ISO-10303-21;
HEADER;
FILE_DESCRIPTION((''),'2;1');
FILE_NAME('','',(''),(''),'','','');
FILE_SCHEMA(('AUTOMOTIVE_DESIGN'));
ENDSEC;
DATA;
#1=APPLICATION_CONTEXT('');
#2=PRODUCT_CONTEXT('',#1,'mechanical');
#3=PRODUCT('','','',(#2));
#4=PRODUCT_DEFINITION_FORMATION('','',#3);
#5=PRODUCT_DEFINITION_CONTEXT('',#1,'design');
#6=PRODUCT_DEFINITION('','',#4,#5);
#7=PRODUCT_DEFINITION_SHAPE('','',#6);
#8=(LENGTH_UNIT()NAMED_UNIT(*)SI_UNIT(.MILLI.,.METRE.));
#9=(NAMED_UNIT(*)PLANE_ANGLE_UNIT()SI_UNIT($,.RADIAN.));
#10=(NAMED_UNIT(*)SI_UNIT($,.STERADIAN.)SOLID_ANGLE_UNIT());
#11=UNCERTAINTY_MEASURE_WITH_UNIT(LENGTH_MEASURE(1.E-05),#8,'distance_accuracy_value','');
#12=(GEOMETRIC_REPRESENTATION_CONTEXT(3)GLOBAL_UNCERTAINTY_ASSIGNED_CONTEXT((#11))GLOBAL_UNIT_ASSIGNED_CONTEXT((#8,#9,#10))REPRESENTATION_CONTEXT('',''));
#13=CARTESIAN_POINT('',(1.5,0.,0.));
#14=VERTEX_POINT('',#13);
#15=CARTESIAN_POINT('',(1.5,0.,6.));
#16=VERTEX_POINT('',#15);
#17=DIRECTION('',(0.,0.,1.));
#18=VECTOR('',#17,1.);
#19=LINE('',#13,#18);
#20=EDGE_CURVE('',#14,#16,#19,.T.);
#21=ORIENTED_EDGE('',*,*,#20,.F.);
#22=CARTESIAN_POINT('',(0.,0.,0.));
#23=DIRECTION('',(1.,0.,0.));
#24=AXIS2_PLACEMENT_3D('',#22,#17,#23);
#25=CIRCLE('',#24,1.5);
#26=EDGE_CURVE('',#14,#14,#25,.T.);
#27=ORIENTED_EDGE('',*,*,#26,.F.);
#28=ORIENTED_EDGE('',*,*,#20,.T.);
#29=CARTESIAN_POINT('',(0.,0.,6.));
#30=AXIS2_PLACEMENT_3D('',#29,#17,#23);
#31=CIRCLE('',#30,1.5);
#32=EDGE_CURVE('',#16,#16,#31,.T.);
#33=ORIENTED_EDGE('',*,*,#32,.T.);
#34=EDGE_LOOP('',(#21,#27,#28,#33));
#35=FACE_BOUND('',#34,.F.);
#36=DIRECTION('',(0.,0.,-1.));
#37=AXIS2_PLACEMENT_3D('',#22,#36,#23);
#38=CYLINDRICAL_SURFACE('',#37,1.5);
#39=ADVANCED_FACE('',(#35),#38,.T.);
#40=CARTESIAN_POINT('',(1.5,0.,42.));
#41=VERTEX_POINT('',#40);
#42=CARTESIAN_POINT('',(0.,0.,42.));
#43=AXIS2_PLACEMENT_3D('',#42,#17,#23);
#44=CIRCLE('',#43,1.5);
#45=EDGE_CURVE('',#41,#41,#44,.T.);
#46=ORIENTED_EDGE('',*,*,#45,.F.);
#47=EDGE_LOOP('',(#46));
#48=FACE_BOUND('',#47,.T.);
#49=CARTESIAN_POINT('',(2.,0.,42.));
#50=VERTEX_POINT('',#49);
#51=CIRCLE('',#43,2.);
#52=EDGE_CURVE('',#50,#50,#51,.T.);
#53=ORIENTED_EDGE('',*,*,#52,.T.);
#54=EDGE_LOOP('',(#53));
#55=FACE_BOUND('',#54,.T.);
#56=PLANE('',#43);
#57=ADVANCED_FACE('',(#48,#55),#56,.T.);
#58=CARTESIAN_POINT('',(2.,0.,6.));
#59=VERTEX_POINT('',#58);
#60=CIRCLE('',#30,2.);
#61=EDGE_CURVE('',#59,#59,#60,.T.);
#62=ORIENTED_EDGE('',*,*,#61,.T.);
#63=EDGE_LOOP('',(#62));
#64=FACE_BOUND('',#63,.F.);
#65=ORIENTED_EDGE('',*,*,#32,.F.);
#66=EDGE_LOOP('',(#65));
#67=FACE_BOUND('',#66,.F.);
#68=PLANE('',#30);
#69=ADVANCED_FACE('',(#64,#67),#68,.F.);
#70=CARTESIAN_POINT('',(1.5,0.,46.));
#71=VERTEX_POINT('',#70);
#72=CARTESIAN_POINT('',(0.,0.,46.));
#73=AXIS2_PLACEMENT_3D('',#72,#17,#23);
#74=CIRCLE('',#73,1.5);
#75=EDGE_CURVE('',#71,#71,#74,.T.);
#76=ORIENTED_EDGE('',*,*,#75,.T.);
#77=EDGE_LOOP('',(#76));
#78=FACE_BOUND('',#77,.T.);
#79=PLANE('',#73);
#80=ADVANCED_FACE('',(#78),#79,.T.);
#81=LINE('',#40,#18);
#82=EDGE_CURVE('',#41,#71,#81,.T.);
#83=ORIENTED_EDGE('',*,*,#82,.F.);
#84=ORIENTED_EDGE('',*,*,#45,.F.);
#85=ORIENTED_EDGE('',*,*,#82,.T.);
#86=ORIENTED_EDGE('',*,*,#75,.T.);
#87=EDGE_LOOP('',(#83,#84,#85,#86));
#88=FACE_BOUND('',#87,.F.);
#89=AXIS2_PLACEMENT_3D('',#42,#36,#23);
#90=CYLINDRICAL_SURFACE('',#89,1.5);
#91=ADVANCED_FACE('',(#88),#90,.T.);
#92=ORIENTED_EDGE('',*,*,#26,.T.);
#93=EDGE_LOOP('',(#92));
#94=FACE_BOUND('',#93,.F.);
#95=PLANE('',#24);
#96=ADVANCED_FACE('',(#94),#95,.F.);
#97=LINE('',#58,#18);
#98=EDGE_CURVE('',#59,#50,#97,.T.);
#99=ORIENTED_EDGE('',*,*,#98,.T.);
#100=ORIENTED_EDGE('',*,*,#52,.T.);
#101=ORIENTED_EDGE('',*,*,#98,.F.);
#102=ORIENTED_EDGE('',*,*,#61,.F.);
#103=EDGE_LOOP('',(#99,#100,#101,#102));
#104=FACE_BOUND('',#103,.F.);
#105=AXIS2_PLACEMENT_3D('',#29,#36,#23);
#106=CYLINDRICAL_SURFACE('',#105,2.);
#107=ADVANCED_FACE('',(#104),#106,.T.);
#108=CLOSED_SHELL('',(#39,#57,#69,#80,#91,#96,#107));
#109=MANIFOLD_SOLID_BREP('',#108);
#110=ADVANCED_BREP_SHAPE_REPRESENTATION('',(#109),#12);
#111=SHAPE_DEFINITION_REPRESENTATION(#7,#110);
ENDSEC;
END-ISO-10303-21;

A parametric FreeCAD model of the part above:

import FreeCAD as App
import Part
import Sketcher
from FreeCAD import Vector
Q = App.Units.Quantity

doc = App.newDocument("Part")
body = doc.addObject("PartDesign::Body", "Body")

# Sketch on XY plane
sketch1 = body.newObject("Sketcher::SketchObject", "Sketch")
sketch1.AttachmentSupport = (doc.getObject("XY_Plane"), [""])
sketch1.MapMode = "FlatFace"
sketch1.addGeometry(Part.Circle(Vector(0, 0, 0), Vector(0, 0, 1), 1.5), False)
sketch1.addConstraint([
    Sketcher.Constraint("Coincident", 0, 3, -1, 1),
    Sketcher.Constraint("Diameter", 0, Q("3 mm")),
])
pad1 = body.newObject("PartDesign::Pad", "Pad")
pad1.Profile = sketch1
pad1.Length = 6

# Sketch on XY plane
sketch2 = body.newObject("Sketcher::SketchObject", "Sketch001")
sketch2.AttachmentSupport = (doc.getObject("XY_Plane"), [""])
sketch2.MapMode = "FlatFace"
sketch2.AttachmentOffset = App.Placement(Vector(0, 0, 6), App.Rotation())
sketch2.addGeometry(Part.Circle(Vector(0, 0, 0), Vector(0, 0, 1), 2), False)
sketch2.addConstraint([
    Sketcher.Constraint("Coincident", 0, 3, -1, 1),
    Sketcher.Constraint("Diameter", 0, Q("4 mm")),
])
pad2 = body.newObject("PartDesign::Pad", "Pad001")
pad2.Profile = sketch2
pad2.Length = 36

# Sketch on XY plane
sketch3 = body.newObject("Sketcher::SketchObject", "Sketch002")
sketch3.AttachmentSupport = (doc.getObject("XY_Plane"), [""])
sketch3.MapMode = "FlatFace"
sketch3.AttachmentOffset = App.Placement(Vector(0, 0, 42), App.Rotation())
sketch3.addGeometry(Part.Circle(Vector(0, 0, 0), Vector(0, 0, 1), 1.5), False)
sketch3.addConstraint([
    Sketcher.Constraint("Coincident", 0, 3, -1, 1),
    Sketcher.Constraint("Diameter", 0, Q("3 mm")),
])
pad3 = body.newObject("PartDesign::Pad", "Pad002")
pad3.Profile = sketch3
pad3.Length = 4

doc.recompute()
